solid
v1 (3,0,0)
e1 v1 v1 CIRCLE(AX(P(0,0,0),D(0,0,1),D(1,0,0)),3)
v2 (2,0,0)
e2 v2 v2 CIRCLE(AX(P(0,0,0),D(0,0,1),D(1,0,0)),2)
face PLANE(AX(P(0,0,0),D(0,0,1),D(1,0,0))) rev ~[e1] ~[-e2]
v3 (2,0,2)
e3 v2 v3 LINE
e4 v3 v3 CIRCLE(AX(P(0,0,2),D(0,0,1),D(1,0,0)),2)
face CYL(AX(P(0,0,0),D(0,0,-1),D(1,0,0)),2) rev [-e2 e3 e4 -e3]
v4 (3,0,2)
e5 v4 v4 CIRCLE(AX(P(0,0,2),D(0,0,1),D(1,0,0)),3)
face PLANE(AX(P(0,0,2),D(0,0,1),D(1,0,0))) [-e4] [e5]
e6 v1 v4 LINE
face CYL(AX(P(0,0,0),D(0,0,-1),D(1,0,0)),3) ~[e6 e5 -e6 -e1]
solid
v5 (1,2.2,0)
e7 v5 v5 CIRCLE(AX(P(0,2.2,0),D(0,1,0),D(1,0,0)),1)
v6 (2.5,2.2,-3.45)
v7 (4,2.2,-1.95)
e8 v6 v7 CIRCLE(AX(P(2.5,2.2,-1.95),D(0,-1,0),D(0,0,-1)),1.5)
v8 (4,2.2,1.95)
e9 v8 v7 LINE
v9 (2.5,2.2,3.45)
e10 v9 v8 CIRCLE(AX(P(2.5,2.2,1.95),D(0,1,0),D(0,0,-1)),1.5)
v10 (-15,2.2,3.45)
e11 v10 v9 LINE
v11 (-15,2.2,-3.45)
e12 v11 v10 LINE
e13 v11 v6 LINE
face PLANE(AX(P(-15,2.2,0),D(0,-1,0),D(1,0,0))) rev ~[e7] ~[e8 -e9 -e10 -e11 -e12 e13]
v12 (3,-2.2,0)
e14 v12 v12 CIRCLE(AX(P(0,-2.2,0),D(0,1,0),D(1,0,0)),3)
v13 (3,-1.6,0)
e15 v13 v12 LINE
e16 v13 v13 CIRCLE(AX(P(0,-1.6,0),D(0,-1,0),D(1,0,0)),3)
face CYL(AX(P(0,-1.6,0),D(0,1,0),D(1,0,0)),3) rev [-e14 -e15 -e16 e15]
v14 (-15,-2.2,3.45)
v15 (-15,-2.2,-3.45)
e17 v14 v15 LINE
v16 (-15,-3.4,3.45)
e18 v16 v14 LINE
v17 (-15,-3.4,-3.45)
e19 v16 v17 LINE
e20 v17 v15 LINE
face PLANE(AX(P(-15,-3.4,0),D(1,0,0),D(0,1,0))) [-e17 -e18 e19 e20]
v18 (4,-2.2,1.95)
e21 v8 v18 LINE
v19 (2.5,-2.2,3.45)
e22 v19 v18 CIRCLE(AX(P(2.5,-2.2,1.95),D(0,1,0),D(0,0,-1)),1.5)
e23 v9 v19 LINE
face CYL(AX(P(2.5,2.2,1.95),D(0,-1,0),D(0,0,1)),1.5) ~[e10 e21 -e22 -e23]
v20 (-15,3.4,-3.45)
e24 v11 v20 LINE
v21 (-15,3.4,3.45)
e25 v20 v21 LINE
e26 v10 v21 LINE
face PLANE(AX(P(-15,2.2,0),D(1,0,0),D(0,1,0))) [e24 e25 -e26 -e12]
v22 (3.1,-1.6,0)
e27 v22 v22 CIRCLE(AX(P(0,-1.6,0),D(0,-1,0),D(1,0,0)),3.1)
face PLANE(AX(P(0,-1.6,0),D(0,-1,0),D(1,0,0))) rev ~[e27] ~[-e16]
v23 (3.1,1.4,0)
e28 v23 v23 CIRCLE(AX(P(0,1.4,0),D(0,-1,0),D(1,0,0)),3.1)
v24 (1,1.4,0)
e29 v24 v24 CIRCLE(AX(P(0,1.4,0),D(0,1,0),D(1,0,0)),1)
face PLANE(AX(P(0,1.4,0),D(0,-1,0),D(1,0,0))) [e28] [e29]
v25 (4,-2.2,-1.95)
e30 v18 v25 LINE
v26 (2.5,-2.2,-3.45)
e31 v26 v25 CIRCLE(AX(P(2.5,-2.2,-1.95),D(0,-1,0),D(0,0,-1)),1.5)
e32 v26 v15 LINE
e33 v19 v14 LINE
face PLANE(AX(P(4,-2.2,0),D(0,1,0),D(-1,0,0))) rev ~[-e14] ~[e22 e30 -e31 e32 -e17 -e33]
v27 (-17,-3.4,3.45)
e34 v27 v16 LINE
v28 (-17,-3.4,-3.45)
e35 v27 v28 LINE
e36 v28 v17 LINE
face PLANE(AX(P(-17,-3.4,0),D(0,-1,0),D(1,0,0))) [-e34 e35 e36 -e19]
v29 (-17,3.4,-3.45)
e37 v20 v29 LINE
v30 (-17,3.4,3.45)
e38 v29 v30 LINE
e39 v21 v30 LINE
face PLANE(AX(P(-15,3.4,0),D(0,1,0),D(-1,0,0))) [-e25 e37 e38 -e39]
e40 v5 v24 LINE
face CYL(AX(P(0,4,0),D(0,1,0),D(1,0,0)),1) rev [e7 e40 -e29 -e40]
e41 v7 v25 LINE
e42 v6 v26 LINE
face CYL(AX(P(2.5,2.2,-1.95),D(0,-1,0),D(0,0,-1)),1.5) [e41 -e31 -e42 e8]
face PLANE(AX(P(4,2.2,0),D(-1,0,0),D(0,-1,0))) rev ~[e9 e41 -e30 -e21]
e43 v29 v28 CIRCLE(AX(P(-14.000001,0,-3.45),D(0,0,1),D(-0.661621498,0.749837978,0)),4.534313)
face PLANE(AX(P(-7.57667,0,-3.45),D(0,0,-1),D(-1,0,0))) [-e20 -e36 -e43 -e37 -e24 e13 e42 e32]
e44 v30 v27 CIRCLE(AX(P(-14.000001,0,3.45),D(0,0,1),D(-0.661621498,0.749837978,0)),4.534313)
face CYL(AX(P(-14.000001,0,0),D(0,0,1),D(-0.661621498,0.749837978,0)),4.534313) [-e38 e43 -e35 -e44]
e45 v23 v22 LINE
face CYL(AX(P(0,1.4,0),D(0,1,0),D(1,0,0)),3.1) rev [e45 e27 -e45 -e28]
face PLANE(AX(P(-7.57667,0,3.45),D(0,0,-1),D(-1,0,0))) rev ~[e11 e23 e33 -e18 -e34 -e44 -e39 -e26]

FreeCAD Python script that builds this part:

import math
import FreeCAD as App
import Part
import Sketcher

V = App.Vector


def edges_at(feature, points):
    """Names of the edges that pass closest to the given points."""
    edges = feature.Shape.Edges
    near = lambda p: min(range(len(edges)), key=lambda i: edges[i].distToShape(Part.Vertex(*p))[0])
    return sorted({f"Edge{near(p) + 1}" for p in points})

doc = App.newDocument("Part")
body = doc.addObject("PartDesign::Body", "Body")

sketch1 = body.newObject("Sketcher::SketchObject", "Sketch")
sketch1.AttachmentSupport = (doc.getObject("XY_Plane"), [""])
sketch1.MapMode = "FlatFace"
sketch1.addGeometry([
    Part.Circle(V(0, 0, 0), V(0, 0, 1), 3),
    Part.Circle(V(0, 0, 0), V(0, 0, 1), 2),
], False)
sketch1.addConstraint([
    Sketcher.Constraint("Coincident", 0, 3, -1, 1),
    Sketcher.Constraint("Coincident", 1, 3, -1, 1),
    Sketcher.Constraint("Diameter", 0, 6.0),
    Sketcher.Constraint("Diameter", 1, 4.0),
])
pad1 = body.newObject("PartDesign::Pad", "Pad")
pad1.Profile = sketch1
pad1.Length = 2
body2 = doc.addObject("PartDesign::Body", "Body001")

sketch2 = body2.newObject("Sketcher::SketchObject", "Sketch001")
sketch2.AttachmentSupport = (doc.getObject("XZ_Plane001"), [""])
sketch2.MapMode = "FlatFace"
sketch2.addGeometry(Part.Circle(V(0, 0, 0), V(0, 0, 1), 3.1), False)
sketch2.addConstraint([
    Sketcher.Constraint("Coincident", 0, 3, -1, 1),
    Sketcher.Constraint("Diameter", 0, 6.2),
])
pad2 = body2.newObject("PartDesign::Pad", "Pad001")
pad2.Profile = sketch2
pad2.Length = 3
body3 = doc.addObject("PartDesign::Body", "Body002")
doc.recompute()

body2.Placement = App.Placement(V(0, 0.4, 0), App.Rotation(V(0, 0, 1), 0))
boolean = body3.newObject("PartDesign::Boolean", "Boolean")
boolean.Type = "Fuse"
boolean.addObjects([body2])
body4 = doc.addObject("PartDesign::Body", "Body003")

sketch3 = body4.newObject("Sketcher::SketchObject", "Sketch002")
sketch3.AttachmentSupport = (doc.getObject("XZ_Plane003"), [""])
sketch3.MapMode = "FlatFace"
sketch3.addGeometry(Part.Circle(V(0, 0, 0), V(0, 0, 1), 3), False)
sketch3.addConstraint([
    Sketcher.Constraint("Coincident", 0, 3, -1, 1),
    Sketcher.Constraint("Diameter", 0, 6.0),
])
pad3 = body4.newObject("PartDesign::Pad", "Pad002")
pad3.Profile = sketch3
pad3.Length = 1
body5 = doc.addObject("PartDesign::Body", "Body004")
doc.recompute()

body4.Placement = App.Placement(V(0, -2.6, 0), App.Rotation(V(0, 0, 1), 0))
boolean2 = body5.newObject("PartDesign::Boolean", "Boolean001")
boolean2.Type = "Fuse"
boolean2.addObjects([body4])
body6 = doc.addObject("PartDesign::Body", "Body005")

sketch4 = body6.newObject("Sketcher::SketchObject", "Sketch003")
sketch4.AttachmentSupport = (doc.getObject("XZ_Plane005"), [""])
sketch4.MapMode = "FlatFace"
sketch4.addGeometry(Part.Circle(V(0, 0, 0), V(0, 0, 1), 1), False)
sketch4.addConstraint([
    Sketcher.Constraint("Coincident", 0, 3, -1, 1),
    Sketcher.Constraint("Diameter", 0, 2.0),
])
pad4 = body6.newObject("PartDesign::Pad", "Pad003")
pad4.Profile = sketch4
pad4.Length = 10
body7 = doc.addObject("PartDesign::Body", "Body006")
doc.recompute()

body6.Placement = App.Placement(V(0, 3, 0), App.Rotation(V(0, 0, 1), 0))
boolean3 = body7.newObject("PartDesign::Boolean", "Boolean002")
boolean3.Type = "Fuse"
boolean3.addObjects([body6])
doc.recompute()

boolean4 = body7.newObject("PartDesign::Boolean", "Boolean003")
boolean4.Type = "Fuse"
boolean4.addObjects([body3])
doc.recompute()

boolean5 = body7.newObject("PartDesign::Boolean", "Boolean004")
boolean5.Type = "Fuse"
boolean5.addObjects([body5])
body8 = doc.addObject("PartDesign::Body", "Body007")
doc.recompute()

body7.Placement = App.Placement(V(0, 1, 0), App.Rotation(V(0, 0, 1), 0))
boolean6 = body8.newObject("PartDesign::Boolean", "Boolean005")
boolean6.Type = "Fuse"
boolean6.addObjects([body7])
body9 = doc.addObject("PartDesign::Body", "Body008")

sketch5 = body9.newObject("Sketcher::SketchObject", "Sketch004")
sketch5.AttachmentSupport = (doc.getObject("XY_Plane008"), [""])
sketch5.MapMode = "FlatFace"
sketch5.addGeometry([
    Part.LineSegment(V(4, 2.2, 0), V(-15, 2.2, 0)),
    Part.LineSegment(V(-15, 2.2, 0), V(-15, 3.4, 0)),
    Part.LineSegment(V(-15, 3.4, 0), V(-17, 3.4, 0)),
    Part.ArcOfCircle(Part.Circle(V(-14, 0, 0), V(0, 0, 1), 4.5), math.radians(131), math.radians(229)),
    Part.LineSegment(V(-17, -3.4, 0), V(-15, -3.4, 0)),
    Part.LineSegment(V(-15, -3.4, 0), V(-15, -2.2, 0)),
    Part.LineSegment(V(-15, -2.2, 0), V(4, -2.2, 0)),
    Part.LineSegment(V(4, -2.2, 0), V(4, 2.2, 0)),
], False)
sketch5.addConstraint([
    Sketcher.Constraint("Coincident", 0, 2, 1, 1),
    Sketcher.Constraint("Coincident", 1, 2, 2, 1),
    Sketcher.Constraint("Coincident", 2, 2, 3, 1),
    Sketcher.Constraint("Coincident", 3, 2, 4, 1),
    Sketcher.Constraint("Coincident", 4, 2, 5, 1),
    Sketcher.Constraint("Coincident", 5, 2, 6, 1),
    Sketcher.Constraint("Coincident", 6, 2, 7, 1),
    Sketcher.Constraint("Coincident", 7, 2, 0, 1),
    Sketcher.Constraint("Horizontal", 0),
    Sketcher.Constraint("Vertical", 1),
    Sketcher.Constraint("Horizontal", 2),
    Sketcher.Constraint("Horizontal", 4),
    Sketcher.Constraint("Vertical", 5),
    Sketcher.Constraint("Horizontal", 6),
    Sketcher.Constraint("Vertical", 7),
    Sketcher.Constraint("Symmetric", 2, 2, 3, 2, -1),
    Sketcher.Constraint("Symmetric", 0, 2, 5, 2, -1),
    Sketcher.Constraint("DistanceX", 0, 2, 0, 1, 19.0),
    Sketcher.Constraint("DistanceX", 2, 2, 2, 1, 2.0),
    Sketcher.Constraint("DistanceY", 1, 1, 1, 2, 1.2),
    Sketcher.Constraint("DistanceY", 7, 1, 7, 2, 4.4),
    Sketcher.Constraint("DistanceX", 3, 3, -1, 1, 14.000001),
    Sketcher.Constraint("DistanceX", 0, 2, -1, 1, 15.0),
])
pad5 = body9.newObject("PartDesign::Pad", "Pad004")
pad5.Profile = sketch5
pad5.Length = 6.9
pad5.Midplane = True
doc.recompute()

boolean7 = body9.newObject("PartDesign::Boolean", "Boolean006")
boolean7.Type = "Cut"
boolean7.addObjects([body8])
doc.recompute()

fillet = body9.newObject("PartDesign::Fillet", "Fillet")
fillet.Base = (boolean7, edges_at(boolean7, [(4, 0, -3.45), (4, 0, 3.45)]))
fillet.Radius = 1.5

doc.recompute()
